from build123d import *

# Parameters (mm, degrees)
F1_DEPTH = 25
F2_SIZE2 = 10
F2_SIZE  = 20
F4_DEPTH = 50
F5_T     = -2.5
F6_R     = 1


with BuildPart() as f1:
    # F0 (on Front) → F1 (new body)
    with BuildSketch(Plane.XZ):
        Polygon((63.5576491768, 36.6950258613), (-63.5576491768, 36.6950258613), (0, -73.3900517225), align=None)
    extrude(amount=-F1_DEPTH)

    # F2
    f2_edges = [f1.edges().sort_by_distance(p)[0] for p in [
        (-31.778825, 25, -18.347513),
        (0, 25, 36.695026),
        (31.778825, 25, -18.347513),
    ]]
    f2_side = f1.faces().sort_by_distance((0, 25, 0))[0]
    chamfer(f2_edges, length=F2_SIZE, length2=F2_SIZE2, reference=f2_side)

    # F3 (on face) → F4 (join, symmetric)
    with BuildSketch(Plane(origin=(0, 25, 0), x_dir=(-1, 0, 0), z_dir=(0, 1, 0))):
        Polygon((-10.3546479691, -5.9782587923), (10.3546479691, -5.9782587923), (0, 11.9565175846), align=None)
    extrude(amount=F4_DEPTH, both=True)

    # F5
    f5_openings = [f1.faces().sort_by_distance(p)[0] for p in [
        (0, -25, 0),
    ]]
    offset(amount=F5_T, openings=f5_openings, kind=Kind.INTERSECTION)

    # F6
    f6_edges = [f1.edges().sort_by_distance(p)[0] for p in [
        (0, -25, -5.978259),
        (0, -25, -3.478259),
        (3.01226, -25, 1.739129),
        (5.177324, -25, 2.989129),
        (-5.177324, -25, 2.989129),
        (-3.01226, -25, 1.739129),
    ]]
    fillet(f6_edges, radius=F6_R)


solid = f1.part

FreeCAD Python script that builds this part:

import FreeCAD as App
import Part
import Sketcher
from FreeCAD import Vector
Q = App.Units.Quantity


def edges_at(feature, points):
    """Names of the edges that pass closest to the given points."""
    edges = feature.Shape.Edges
    near = lambda p: min(range(len(edges)), key=lambda i: edges[i].distToShape(Part.Vertex(*p))[0])
    return sorted({f"Edge{near(p) + 1}" for p in points})


def faces_at(feature, points):
    """Names of the faces that lie closest to the given points."""
    faces = feature.Shape.Faces
    near = lambda p: min(range(len(faces)), key=lambda i: faces[i].distToShape(Part.Vertex(*p))[0])
    return sorted({f"Face{near(p) + 1}" for p in points})

doc = App.newDocument("Part")
params = doc.addObject("Spreadsheet::Sheet", "Params")
for row, (alias, value) in enumerate([
    ("pad1_length", "25 mm"),
    ("chamfer_size", "20 mm"),
    ("chamfer_size2", "10 mm"),
    ("pad2_length", "100 mm"),
    ("thickness_wall", "2.5 mm"),
    ("fillet_radius", "1 mm"),
], start=1):
    params.set(f"A{row}", alias)
    params.set(f"B{row}", "=" + value)
    params.setAlias(f"B{row}", alias)

body = doc.addObject("PartDesign::Body", "Body")

# Sketch on XZ plane
sketch1 = body.newObject("Sketcher::SketchObject", "Sketch")
sketch1.AttachmentSupport = (doc.getObject("XZ_Plane"), [""])
sketch1.MapMode = "FlatFace"
sketch1.addGeometry(Part.LineSegment(Vector(63.557649, 36.695026, 0), Vector(-63.557649, 36.695026, 0)), False)
sketch1.addGeometry(Part.LineSegment(Vector(-63.557649, 36.695026, 0), Vector(0, -73.390052, 0)), False)
sketch1.addGeometry(Part.LineSegment(Vector(0, -73.390052, 0), Vector(63.557649, 36.695026, 0)), False)
sketch1.addConstraint(Sketcher.Constraint("Coincident", 0, 2, 1, 1))
sketch1.addConstraint(Sketcher.Constraint("Coincident", 1, 2, 2, 1))
sketch1.addConstraint(Sketcher.Constraint("Coincident", 2, 2, 0, 1))
sketch1.addConstraint(Sketcher.Constraint("Horizontal", 0))
sketch1.addConstraint(Sketcher.Constraint("PointOnObject", 1, 2, -2))
sketch1.addConstraint(Sketcher.Constraint("Equal", 1, 2))
sketch1.addConstraint(Sketcher.Constraint("Angle", 1, Q("-60 deg")))
sketch1.addConstraint(Sketcher.Constraint("DistanceX", 0, 2, 0, 1, Q("127.115298 mm")))
sketch1.addConstraint(Sketcher.Constraint("DistanceY", 1, 2, -1, 1, Q("73.390052 mm")))
pad1 = body.newObject("PartDesign::Pad", "Pad")
pad1.Profile = sketch1
pad1.setExpression("Length", "Params.pad1_length")
pad1.Reversed = True
doc.recompute()

chamfer = body.newObject("PartDesign::Chamfer", "Chamfer")
chamfer.Base = (pad1, edges_at(pad1, [(-31.779, 25, -18.348), (0, 25, 36.695), (31.779, 25, -18.348)]))
chamfer.ChamferType = "Two distances"
chamfer.setExpression("Size", "Params.chamfer_size")
chamfer.setExpression("Size2", "Params.chamfer_size2")
chamfer.FlipDirection = True

# Sketch on XZ plane
sketch2 = body.newObject("Sketcher::SketchObject", "Sketch001")
sketch2.AttachmentSupport = (doc.getObject("XZ_Plane"), [""])
sketch2.MapMode = "FlatFace"
sketch2.AttachmentOffset = App.Placement(Vector(0, 0, -25), App.Rotation())
sketch2.addGeometry(Part.LineSegment(Vector(10.354648, -5.978259, 0), Vector(-10.354648, -5.978259, 0)), False)
sketch2.addGeometry(Part.LineSegment(Vector(-10.354648, -5.978259, 0), Vector(0, 11.956518, 0)), False)
sketch2.addGeometry(Part.LineSegment(Vector(0, 11.956518, 0), Vector(10.354648, -5.978259, 0)), False)
sketch2.addConstraint(Sketcher.Constraint("Coincident", 0, 2, 1, 1))
sketch2.addConstraint(Sketcher.Constraint("Coincident", 1, 2, 2, 1))
sketch2.addConstraint(Sketcher.Constraint("Coincident", 2, 2, 0, 1))
sketch2.addConstraint(Sketcher.Constraint("Horizontal", 0))
sketch2.addConstraint(Sketcher.Constraint("PointOnObject", 1, 2, -2))
sketch2.addConstraint(Sketcher.Constraint("Equal", 1, 2))
sketch2.addConstraint(Sketcher.Constraint("Angle", 1, Q("60 deg")))
sketch2.addConstraint(Sketcher.Constraint("DistanceX", 0, 2, 0, 1, Q("20.709296 mm")))
sketch2.addConstraint(Sketcher.Constraint("DistanceY", 0, 2, -1, 1, Q("5.978259 mm")))
pad2 = body.newObject("PartDesign::Pad", "Pad001")
pad2.Profile = sketch2
pad2.setExpression("Length", "Params.pad2_length")
pad2.Midplane = True
doc.recompute()

thickness = body.newObject("PartDesign::Thickness", "Thickness")
thickness.Base = (pad2, faces_at(pad2, [(0, -25, 2.989)]))
thickness.setExpression("Value", "Params.thickness_wall")
thickness.Reversed = True
thickness.Join = "Intersection"
doc.recompute()

fillet = body.newObject("PartDesign::Fillet", "Fillet")
fillet.Base = (thickness, edges_at(thickness, [
    (0, -25, -5.978),
    (0, -25, -3.478),
    (3.012, -25, 1.739),
    (5.177, -25, 2.989),
    (-5.177, -25, 2.989),
    (-3.012, -25, 1.739),
]))
fillet.setExpression("Radius", "Params.fillet_radius")

doc.recompute()
